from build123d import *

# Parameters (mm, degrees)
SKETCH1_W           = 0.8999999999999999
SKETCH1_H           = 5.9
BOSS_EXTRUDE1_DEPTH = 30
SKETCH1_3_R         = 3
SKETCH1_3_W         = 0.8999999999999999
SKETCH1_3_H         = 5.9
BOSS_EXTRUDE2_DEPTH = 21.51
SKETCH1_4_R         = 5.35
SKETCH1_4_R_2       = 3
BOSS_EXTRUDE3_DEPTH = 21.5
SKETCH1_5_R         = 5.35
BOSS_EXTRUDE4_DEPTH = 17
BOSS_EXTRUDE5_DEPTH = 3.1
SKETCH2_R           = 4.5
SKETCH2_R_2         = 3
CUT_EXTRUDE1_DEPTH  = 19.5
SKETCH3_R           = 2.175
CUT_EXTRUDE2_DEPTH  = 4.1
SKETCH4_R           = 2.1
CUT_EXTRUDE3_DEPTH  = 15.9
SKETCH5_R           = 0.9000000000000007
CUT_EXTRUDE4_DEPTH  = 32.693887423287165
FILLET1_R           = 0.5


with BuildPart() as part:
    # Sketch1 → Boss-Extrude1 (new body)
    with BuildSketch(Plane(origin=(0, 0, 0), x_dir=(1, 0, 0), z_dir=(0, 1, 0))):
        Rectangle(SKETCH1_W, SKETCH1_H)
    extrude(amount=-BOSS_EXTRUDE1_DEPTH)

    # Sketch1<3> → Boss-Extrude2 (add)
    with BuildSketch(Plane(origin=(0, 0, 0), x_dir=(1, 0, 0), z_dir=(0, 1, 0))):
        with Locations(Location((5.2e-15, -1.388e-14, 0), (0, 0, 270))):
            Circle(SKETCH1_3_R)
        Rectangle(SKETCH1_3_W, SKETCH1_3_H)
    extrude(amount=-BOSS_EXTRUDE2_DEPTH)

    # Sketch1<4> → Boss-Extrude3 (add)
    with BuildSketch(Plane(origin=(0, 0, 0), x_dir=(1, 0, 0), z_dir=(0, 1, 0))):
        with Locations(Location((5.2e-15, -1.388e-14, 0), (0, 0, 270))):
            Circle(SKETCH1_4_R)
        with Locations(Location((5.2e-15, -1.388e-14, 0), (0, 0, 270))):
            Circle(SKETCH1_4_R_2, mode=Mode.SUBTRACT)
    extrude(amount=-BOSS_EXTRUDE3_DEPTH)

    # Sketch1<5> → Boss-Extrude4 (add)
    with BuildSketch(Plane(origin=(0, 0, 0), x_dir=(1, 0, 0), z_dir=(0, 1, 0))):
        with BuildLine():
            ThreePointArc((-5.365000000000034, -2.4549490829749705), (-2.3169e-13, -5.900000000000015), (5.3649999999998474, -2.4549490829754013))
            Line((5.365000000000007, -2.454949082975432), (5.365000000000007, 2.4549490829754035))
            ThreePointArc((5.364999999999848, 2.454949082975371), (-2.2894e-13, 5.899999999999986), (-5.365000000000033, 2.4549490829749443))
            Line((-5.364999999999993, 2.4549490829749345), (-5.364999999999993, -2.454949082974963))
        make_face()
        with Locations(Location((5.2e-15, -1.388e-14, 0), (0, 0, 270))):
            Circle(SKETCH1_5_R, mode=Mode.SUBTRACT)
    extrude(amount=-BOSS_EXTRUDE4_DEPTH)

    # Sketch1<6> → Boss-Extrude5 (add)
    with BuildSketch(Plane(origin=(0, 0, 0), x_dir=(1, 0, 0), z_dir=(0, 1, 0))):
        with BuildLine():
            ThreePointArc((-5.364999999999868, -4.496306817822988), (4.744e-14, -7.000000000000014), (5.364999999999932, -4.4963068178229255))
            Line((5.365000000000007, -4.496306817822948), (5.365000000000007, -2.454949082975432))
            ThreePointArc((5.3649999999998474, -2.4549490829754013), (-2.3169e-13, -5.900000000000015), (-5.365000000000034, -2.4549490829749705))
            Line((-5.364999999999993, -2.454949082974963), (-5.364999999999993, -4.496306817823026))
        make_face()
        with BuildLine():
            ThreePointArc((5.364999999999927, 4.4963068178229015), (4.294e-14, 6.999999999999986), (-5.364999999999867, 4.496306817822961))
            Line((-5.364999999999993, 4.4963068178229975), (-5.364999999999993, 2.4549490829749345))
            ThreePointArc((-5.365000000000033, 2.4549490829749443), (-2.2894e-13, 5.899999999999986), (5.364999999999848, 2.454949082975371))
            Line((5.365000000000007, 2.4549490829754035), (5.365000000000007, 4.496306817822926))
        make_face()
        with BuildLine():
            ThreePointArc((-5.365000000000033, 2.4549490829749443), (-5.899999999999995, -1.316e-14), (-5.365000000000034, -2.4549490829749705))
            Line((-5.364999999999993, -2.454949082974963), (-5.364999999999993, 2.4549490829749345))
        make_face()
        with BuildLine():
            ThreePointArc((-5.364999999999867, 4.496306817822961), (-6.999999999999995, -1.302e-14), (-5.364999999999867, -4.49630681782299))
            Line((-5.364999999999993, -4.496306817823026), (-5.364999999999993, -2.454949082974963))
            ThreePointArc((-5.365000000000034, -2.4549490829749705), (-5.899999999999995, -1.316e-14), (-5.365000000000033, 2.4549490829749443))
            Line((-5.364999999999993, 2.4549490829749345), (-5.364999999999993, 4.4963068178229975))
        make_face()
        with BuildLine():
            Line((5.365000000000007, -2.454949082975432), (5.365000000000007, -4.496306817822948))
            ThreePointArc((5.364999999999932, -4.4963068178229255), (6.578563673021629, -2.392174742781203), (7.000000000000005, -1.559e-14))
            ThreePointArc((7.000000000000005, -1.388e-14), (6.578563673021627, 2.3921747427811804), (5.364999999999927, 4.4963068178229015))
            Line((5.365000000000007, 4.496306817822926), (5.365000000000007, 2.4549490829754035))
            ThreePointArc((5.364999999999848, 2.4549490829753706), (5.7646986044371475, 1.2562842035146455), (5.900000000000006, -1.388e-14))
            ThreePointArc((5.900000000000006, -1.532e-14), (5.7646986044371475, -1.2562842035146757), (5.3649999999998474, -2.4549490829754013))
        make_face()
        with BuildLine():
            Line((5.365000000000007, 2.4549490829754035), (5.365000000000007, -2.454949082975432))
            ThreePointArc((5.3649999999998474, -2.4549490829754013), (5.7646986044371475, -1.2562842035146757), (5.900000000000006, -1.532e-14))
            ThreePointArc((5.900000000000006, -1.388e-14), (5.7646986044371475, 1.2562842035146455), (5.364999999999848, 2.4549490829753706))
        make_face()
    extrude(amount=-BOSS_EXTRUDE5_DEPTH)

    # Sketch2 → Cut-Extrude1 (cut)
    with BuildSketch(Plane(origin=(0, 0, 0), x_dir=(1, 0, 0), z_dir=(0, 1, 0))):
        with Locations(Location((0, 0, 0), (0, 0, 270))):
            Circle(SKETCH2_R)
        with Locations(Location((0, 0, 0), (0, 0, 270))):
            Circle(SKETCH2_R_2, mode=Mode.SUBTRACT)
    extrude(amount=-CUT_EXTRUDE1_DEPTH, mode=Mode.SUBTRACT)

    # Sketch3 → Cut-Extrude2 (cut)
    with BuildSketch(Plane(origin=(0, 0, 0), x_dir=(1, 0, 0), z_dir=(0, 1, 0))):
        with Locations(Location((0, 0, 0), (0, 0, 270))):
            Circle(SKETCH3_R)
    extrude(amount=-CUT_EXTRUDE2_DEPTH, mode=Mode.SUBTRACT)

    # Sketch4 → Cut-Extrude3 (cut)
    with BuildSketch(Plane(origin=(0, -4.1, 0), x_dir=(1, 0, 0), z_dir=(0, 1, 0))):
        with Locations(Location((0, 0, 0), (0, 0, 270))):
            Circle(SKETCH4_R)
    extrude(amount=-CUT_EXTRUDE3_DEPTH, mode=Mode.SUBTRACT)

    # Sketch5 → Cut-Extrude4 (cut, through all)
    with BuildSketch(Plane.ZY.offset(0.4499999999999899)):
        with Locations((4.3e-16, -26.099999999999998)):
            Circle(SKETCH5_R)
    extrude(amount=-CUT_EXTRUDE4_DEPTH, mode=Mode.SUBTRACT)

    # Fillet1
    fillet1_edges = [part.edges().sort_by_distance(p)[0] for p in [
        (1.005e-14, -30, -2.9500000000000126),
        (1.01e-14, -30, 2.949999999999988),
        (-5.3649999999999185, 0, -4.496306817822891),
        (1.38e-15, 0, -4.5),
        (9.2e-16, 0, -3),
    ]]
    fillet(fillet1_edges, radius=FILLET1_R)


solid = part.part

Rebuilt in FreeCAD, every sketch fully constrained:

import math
import FreeCAD as App
import Part
import Sketcher


def edges_at(feature, points):
    """Names of the edges that pass closest to the given points."""
    edges = feature.Shape.Edges
    near = lambda p: min(range(len(edges)), key=lambda i: edges[i].distToShape(Part.Vertex(*p))[0])
    return sorted({f"Edge{near(p) + 1}" for p in points})


def add_polygon(sketch, points):
    """Adds a closed chain of lines whose ends are joined by coincident constraints."""
    first, n = sketch.GeometryCount, len(points)
    for a, b in zip(points, points[1:] + points[:1]):
        sketch.addGeometry(Part.LineSegment(App.Vector(*a, 0), App.Vector(*b, 0)), False)
    for i in range(n):
        sketch.addConstraint(Sketcher.Constraint("Coincident", first + i, 2, first + (i + 1) % n, 1))

doc = App.newDocument("Part")
params = doc.addObject("Spreadsheet::Sheet", "Params")
for row, (alias, value) in enumerate([
    ("sketch1_width", "0.9 mm"),
    ("sketch1_height", "5.9 mm"),
    ("pad1_length", "30 mm"),
    ("sketch2_diameter", "6 mm"),
    ("pad2_length", "21.51 mm"),
    ("sketch3_diameter", "6 mm"),
    ("sketch3_diameter2", "10.7 mm"),
    ("pad3_length", "21.5 mm"),
    ("sketch4_diameter", "10.7 mm"),
    ("sketch4_radius", "5.9 mm"),
    ("pad4_length", "17 mm"),
    ("sketch5_diameter", "14 mm"),
    ("sketch5_radius", "5.9 mm"),
    ("pad5_length", "3.1 mm"),
    ("sketch6_diameter", "9 mm"),
    ("sketch6_diameter2", "6 mm"),
    ("pocket1_length", "19.5 mm"),
    ("sketch7_diameter", "4.35 mm"),
    ("pocket2_length", "4.1 mm"),
    ("sketch8_diameter", "4.2 mm"),
    ("pocket3_length", "15.9 mm"),
    ("sketch9_diameter", "1.8 mm"),
    ("fillet_radius", "0.5 mm"),
], start=1):
    params.set(f"A{row}", alias)
    params.set(f"B{row}", "=" + value)
    params.setAlias(f"B{row}", alias)

body = doc.addObject("PartDesign::Body", "Body")

# Sketch on XZ plane
sketch1 = doc.addObject("Sketcher::SketchObject", "Sketch")
body.addObject(sketch1)
sketch1.AttachmentSupport = (doc.XZ_Plane, [""])
sketch1.MapMode = "FlatFace"
add_polygon(sketch1, [(-0.5, -3), (-0.5, 3), (0.5, 3), (0.5, -3)])  # lines 0-3
sketch1.addConstraint([
    Sketcher.Constraint("Vertical", 0),
    Sketcher.Constraint("Horizontal", 1),
    Sketcher.Constraint("Vertical", 2),
    Sketcher.Constraint("Horizontal", 3),
    Sketcher.Constraint("Symmetric", 0, 2, 2, 2, -1, 1),
    Sketcher.Constraint("DistanceX", 1, 1, 1, 2, 0.9),
    Sketcher.Constraint("DistanceY", 0, 1, 0, 2, 5.9),
])
sketch1.setExpression("Constraints[9]", "Params.sketch1_width")
sketch1.setExpression("Constraints[10]", "Params.sketch1_height")
pad1 = doc.addObject("PartDesign::Pad", "Pad")
body.addObject(pad1)
pad1.Profile = sketch1
pad1.setExpression("Length", "Params.pad1_length")

# Sketch on XZ plane
sketch2 = doc.addObject("Sketcher::SketchObject", "Sketch001")
body.addObject(sketch2)
sketch2.AttachmentSupport = (doc.XZ_Plane, [""])
sketch2.MapMode = "FlatFace"
sketch2.addGeometry(Part.Circle(App.Vector(0, 0, 0), App.Vector(0, 0, 1), 3), False)
sketch2.addConstraint([
    Sketcher.Constraint("Coincident", 0, 3, -1, 1),
    Sketcher.Constraint("Diameter", 0, 6.0),
])
sketch2.setExpression("Constraints[1]", "Params.sketch2_diameter")
pad2 = doc.addObject("PartDesign::Pad", "Pad001")
body.addObject(pad2)
pad2.Profile = sketch2
pad2.setExpression("Length", "Params.pad2_length")

# Sketch on XZ plane
sketch3 = doc.addObject("Sketcher::SketchObject", "Sketch002")
body.addObject(sketch3)
sketch3.AttachmentSupport = (doc.XZ_Plane, [""])
sketch3.MapMode = "FlatFace"
sketch3.addGeometry([
    Part.Circle(App.Vector(0, 0, 0), App.Vector(0, 0, 1), 5.3),
    Part.Circle(App.Vector(0, 0, 0), App.Vector(0, 0, 1), 3),
], False)
sketch3.addConstraint([
    Sketcher.Constraint("Coincident", 0, 3, -1, 1),
    Sketcher.Constraint("Coincident", 1, 3, -1, 1),
    Sketcher.Constraint("Diameter", 1, 6.0),
    Sketcher.Constraint("Diameter", 0, 10.7),
])
sketch3.setExpression("Constraints[2]", "Params.sketch3_diameter")
sketch3.setExpression("Constraints[3]", "Params.sketch3_diameter2")
pad3 = doc.addObject("PartDesign::Pad", "Pad002")
body.addObject(pad3)
pad3.Profile = sketch3
pad3.setExpression("Length", "Params.pad3_length")

# Sketch on XZ plane
sketch4 = doc.addObject("Sketcher::SketchObject", "Sketch003")
body.addObject(sketch4)
sketch4.AttachmentSupport = (doc.XZ_Plane, [""])
sketch4.MapMode = "FlatFace"
sketch4.addGeometry([
    Part.ArcOfCircle(Part.Circle(App.Vector(0, 0, 0), App.Vector(0, 0, 1), 5.9), math.radians(25), math.radians(155)),  # 0
    Part.LineSegment(App.Vector(5.4, 2.5, 0), App.Vector(5.4, -2.5, 0)),  # 1
    Part.ArcOfCircle(Part.Circle(App.Vector(0, 0, 0), App.Vector(0, 0, 1), 5.9), math.radians(-155), math.radians(-25)),  # 2
    Part.LineSegment(App.Vector(-5.4, -2.5, 0), App.Vector(-5.4, 2.5, 0)),  # 3
    Part.Circle(App.Vector(0, 0, 0), App.Vector(0, 0, 1), 5.3),  # 4
], False)
sketch4.addConstraint([
    Sketcher.Constraint("Coincident", 0, 1, 1, 1),
    Sketcher.Constraint("Coincident", 1, 2, 2, 2),
    Sketcher.Constraint("Coincident", 2, 1, 3, 1),
    Sketcher.Constraint("Coincident", 3, 2, 0, 2),
    Sketcher.Constraint("Vertical", 1),
    Sketcher.Constraint("Vertical", 3),
    Sketcher.Constraint("Coincident", 0, 3, -1, 1),
    Sketcher.Constraint("Coincident", 2, 3, -1, 1),
    Sketcher.Constraint("Coincident", 4, 3, -1, 1),
    Sketcher.Constraint("Equal", 0, 2),
    Sketcher.Constraint("Horizontal", 1, 2, 2, 1),
    Sketcher.Constraint("Diameter", 4, 10.7),
    Sketcher.Constraint("Radius", 0, 5.9),
    Sketcher.Constraint("DistanceX", 2, 1, 1, 2, 10.73),
])
sketch4.setExpression("Constraints[11]", "Params.sketch4_diameter")
sketch4.setExpression("Constraints[12]", "Params.sketch4_radius")
pad4 = doc.addObject("PartDesign::Pad", "Pad003")
body.addObject(pad4)
pad4.Profile = sketch4
pad4.setExpression("Length", "Params.pad4_length")

# Sketch on XZ plane
sketch5 = doc.addObject("Sketcher::SketchObject", "Sketch004")
body.addObject(sketch5)
sketch5.AttachmentSupport = (doc.XZ_Plane, [""])
sketch5.MapMode = "FlatFace"
sketch5.addGeometry([
    Part.Circle(App.Vector(0, 0, 0), App.Vector(0, 0, 1), 7),  # 0
    Part.LineSegment(App.Vector(-5.4, 2.5, 0), App.Vector(-5.4, -2.5, 0)),  # 1
    Part.ArcOfCircle(Part.Circle(App.Vector(0, 0, 0), App.Vector(0, 0, 1), 5.9), math.radians(-155), math.radians(-25)),  # 2
    Part.LineSegment(App.Vector(5.4, -2.5, 0), App.Vector(5.4, 2.5, 0)),  # 3
    Part.ArcOfCircle(Part.Circle(App.Vector(0, 0, 0), App.Vector(0, 0, 1), 5.9), math.radians(25), math.radians(155)),  # 4
], False)
sketch5.addConstraint([
    Sketcher.Constraint("Coincident", 1, 2, 2, 1),
    Sketcher.Constraint("Coincident", 2, 2, 3, 1),
    Sketcher.Constraint("Coincident", 3, 2, 4, 1),
    Sketcher.Constraint("Coincident", 4, 2, 1, 1),
    Sketcher.Constraint("Vertical", 1),
    Sketcher.Constraint("Vertical", 3),
    Sketcher.Constraint("Coincident", 0, 3, -1, 1),
    Sketcher.Constraint("Coincident", 2, 3, -1, 1),
    Sketcher.Constraint("Coincident", 4, 3, -1, 1),
    Sketcher.Constraint("Equal", 2, 4),
    Sketcher.Constraint("Horizontal", 1, 2, 2, 2),
    Sketcher.Constraint("Diameter", 0, 14.0),
    Sketcher.Constraint("Radius", 2, 5.9),
    Sketcher.Constraint("DistanceX", 1, 2, 2, 2, 10.73),
])
sketch5.setExpression("Constraints[11]", "Params.sketch5_diameter")
sketch5.setExpression("Constraints[12]", "Params.sketch5_radius")
pad5 = doc.addObject("PartDesign::Pad", "Pad004")
body.addObject(pad5)
pad5.Profile = sketch5
pad5.setExpression("Length", "Params.pad5_length")

# Sketch on XZ plane
sketch6 = doc.addObject("Sketcher::SketchObject", "Sketch005")
body.addObject(sketch6)
sketch6.AttachmentSupport = (doc.XZ_Plane, [""])
sketch6.MapMode = "FlatFace"
sketch6.addGeometry([
    Part.Circle(App.Vector(0, 0, 0), App.Vector(0, 0, 1), 4.5),
    Part.Circle(App.Vector(0, 0, 0), App.Vector(0, 0, 1), 3),
], False)
sketch6.addConstraint([
    Sketcher.Constraint("Coincident", 0, 3, -1, 1),
    Sketcher.Constraint("Coincident", 1, 3, -1, 1),
    Sketcher.Constraint("Diameter", 0, 9.0),
    Sketcher.Constraint("Diameter", 1, 6.0),
])
sketch6.setExpression("Constraints[2]", "Params.sketch6_diameter")
sketch6.setExpression("Constraints[3]", "Params.sketch6_diameter2")
pocket1 = doc.addObject("PartDesign::Pocket", "Pocket")
body.addObject(pocket1)
pocket1.Profile = sketch6
pocket1.setExpression("Length", "Params.pocket1_length")
pocket1.Reversed = True

# Sketch on XZ plane
sketch7 = doc.addObject("Sketcher::SketchObject", "Sketch006")
body.addObject(sketch7)
sketch7.AttachmentSupport = (doc.XZ_Plane, [""])
sketch7.MapMode = "FlatFace"
sketch7.addGeometry(Part.Circle(App.Vector(0, 0, 0), App.Vector(0, 0, 1), 2.2), False)
sketch7.addConstraint([
    Sketcher.Constraint("Coincident", 0, 3, -1, 1),
    Sketcher.Constraint("Diameter", 0, 4.35),
])
sketch7.setExpression("Constraints[1]", "Params.sketch7_diameter")
pocket2 = doc.addObject("PartDesign::Pocket", "Pocket001")
body.addObject(pocket2)
pocket2.Profile = sketch7
pocket2.setExpression("Length", "Params.pocket2_length")
pocket2.Reversed = True

# Sketch on XZ plane
sketch8 = doc.addObject("Sketcher::SketchObject", "Sketch007")
body.addObject(sketch8)
sketch8.AttachmentSupport = (doc.XZ_Plane, [""])
sketch8.MapMode = "FlatFace"
sketch8.AttachmentOffset = App.Placement(App.Vector(0, 0, 4.1), App.Rotation())
sketch8.addGeometry(Part.Circle(App.Vector(0, 0, 0), App.Vector(0, 0, 1), 2.1), False)
sketch8.addConstraint([
    Sketcher.Constraint("Coincident", 0, 3, -1, 1),
    Sketcher.Constraint("Diameter", 0, 4.2),
])
sketch8.setExpression("Constraints[1]", "Params.sketch8_diameter")
pocket3 = doc.addObject("PartDesign::Pocket", "Pocket002")
body.addObject(pocket3)
pocket3.Profile = sketch8
pocket3.setExpression("Length", "Params.pocket3_length")
pocket3.Reversed = True

# Sketch on YZ plane
sketch9 = doc.addObject("Sketcher::SketchObject", "Sketch008")
body.addObject(sketch9)
sketch9.AttachmentSupport = (doc.YZ_Plane, [""])
sketch9.MapMode = "FlatFace"
sketch9.AttachmentOffset = App.Placement(App.Vector(0, 0, -0.45), App.Rotation())
sketch9.addGeometry(Part.Circle(App.Vector(-26.1, 0, 0), App.Vector(0, 0, 1), 0.9), False)
sketch9.addConstraint([
    Sketcher.Constraint("PointOnObject", 0, 3, -1),
    Sketcher.Constraint("Diameter", 0, 1.8),
    Sketcher.Constraint("DistanceX", 0, 3, -1, 1, 26.1),
])
sketch9.setExpression("Constraints[1]", "Params.sketch9_diameter")
pocket4 = doc.addObject("PartDesign::Pocket", "Pocket003")
body.addObject(pocket4)
pocket4.Profile = sketch9
pocket4.Type = "ThroughAll"
pocket4.Reversed = True
doc.recompute()

fillet = doc.addObject("PartDesign::Fillet", "Fillet")
body.addObject(fillet)
fillet.Base = (pocket4, edges_at(pocket4, [
    (0, -30, -2.95),
    (0, -30, 2.95),
    (-5.365, 0, -4.496),
    (0, 0, -4.5),
    (0, 0, -3),
]))
fillet.setExpression("Radius", "Params.fillet_radius")

doc.recompute()
